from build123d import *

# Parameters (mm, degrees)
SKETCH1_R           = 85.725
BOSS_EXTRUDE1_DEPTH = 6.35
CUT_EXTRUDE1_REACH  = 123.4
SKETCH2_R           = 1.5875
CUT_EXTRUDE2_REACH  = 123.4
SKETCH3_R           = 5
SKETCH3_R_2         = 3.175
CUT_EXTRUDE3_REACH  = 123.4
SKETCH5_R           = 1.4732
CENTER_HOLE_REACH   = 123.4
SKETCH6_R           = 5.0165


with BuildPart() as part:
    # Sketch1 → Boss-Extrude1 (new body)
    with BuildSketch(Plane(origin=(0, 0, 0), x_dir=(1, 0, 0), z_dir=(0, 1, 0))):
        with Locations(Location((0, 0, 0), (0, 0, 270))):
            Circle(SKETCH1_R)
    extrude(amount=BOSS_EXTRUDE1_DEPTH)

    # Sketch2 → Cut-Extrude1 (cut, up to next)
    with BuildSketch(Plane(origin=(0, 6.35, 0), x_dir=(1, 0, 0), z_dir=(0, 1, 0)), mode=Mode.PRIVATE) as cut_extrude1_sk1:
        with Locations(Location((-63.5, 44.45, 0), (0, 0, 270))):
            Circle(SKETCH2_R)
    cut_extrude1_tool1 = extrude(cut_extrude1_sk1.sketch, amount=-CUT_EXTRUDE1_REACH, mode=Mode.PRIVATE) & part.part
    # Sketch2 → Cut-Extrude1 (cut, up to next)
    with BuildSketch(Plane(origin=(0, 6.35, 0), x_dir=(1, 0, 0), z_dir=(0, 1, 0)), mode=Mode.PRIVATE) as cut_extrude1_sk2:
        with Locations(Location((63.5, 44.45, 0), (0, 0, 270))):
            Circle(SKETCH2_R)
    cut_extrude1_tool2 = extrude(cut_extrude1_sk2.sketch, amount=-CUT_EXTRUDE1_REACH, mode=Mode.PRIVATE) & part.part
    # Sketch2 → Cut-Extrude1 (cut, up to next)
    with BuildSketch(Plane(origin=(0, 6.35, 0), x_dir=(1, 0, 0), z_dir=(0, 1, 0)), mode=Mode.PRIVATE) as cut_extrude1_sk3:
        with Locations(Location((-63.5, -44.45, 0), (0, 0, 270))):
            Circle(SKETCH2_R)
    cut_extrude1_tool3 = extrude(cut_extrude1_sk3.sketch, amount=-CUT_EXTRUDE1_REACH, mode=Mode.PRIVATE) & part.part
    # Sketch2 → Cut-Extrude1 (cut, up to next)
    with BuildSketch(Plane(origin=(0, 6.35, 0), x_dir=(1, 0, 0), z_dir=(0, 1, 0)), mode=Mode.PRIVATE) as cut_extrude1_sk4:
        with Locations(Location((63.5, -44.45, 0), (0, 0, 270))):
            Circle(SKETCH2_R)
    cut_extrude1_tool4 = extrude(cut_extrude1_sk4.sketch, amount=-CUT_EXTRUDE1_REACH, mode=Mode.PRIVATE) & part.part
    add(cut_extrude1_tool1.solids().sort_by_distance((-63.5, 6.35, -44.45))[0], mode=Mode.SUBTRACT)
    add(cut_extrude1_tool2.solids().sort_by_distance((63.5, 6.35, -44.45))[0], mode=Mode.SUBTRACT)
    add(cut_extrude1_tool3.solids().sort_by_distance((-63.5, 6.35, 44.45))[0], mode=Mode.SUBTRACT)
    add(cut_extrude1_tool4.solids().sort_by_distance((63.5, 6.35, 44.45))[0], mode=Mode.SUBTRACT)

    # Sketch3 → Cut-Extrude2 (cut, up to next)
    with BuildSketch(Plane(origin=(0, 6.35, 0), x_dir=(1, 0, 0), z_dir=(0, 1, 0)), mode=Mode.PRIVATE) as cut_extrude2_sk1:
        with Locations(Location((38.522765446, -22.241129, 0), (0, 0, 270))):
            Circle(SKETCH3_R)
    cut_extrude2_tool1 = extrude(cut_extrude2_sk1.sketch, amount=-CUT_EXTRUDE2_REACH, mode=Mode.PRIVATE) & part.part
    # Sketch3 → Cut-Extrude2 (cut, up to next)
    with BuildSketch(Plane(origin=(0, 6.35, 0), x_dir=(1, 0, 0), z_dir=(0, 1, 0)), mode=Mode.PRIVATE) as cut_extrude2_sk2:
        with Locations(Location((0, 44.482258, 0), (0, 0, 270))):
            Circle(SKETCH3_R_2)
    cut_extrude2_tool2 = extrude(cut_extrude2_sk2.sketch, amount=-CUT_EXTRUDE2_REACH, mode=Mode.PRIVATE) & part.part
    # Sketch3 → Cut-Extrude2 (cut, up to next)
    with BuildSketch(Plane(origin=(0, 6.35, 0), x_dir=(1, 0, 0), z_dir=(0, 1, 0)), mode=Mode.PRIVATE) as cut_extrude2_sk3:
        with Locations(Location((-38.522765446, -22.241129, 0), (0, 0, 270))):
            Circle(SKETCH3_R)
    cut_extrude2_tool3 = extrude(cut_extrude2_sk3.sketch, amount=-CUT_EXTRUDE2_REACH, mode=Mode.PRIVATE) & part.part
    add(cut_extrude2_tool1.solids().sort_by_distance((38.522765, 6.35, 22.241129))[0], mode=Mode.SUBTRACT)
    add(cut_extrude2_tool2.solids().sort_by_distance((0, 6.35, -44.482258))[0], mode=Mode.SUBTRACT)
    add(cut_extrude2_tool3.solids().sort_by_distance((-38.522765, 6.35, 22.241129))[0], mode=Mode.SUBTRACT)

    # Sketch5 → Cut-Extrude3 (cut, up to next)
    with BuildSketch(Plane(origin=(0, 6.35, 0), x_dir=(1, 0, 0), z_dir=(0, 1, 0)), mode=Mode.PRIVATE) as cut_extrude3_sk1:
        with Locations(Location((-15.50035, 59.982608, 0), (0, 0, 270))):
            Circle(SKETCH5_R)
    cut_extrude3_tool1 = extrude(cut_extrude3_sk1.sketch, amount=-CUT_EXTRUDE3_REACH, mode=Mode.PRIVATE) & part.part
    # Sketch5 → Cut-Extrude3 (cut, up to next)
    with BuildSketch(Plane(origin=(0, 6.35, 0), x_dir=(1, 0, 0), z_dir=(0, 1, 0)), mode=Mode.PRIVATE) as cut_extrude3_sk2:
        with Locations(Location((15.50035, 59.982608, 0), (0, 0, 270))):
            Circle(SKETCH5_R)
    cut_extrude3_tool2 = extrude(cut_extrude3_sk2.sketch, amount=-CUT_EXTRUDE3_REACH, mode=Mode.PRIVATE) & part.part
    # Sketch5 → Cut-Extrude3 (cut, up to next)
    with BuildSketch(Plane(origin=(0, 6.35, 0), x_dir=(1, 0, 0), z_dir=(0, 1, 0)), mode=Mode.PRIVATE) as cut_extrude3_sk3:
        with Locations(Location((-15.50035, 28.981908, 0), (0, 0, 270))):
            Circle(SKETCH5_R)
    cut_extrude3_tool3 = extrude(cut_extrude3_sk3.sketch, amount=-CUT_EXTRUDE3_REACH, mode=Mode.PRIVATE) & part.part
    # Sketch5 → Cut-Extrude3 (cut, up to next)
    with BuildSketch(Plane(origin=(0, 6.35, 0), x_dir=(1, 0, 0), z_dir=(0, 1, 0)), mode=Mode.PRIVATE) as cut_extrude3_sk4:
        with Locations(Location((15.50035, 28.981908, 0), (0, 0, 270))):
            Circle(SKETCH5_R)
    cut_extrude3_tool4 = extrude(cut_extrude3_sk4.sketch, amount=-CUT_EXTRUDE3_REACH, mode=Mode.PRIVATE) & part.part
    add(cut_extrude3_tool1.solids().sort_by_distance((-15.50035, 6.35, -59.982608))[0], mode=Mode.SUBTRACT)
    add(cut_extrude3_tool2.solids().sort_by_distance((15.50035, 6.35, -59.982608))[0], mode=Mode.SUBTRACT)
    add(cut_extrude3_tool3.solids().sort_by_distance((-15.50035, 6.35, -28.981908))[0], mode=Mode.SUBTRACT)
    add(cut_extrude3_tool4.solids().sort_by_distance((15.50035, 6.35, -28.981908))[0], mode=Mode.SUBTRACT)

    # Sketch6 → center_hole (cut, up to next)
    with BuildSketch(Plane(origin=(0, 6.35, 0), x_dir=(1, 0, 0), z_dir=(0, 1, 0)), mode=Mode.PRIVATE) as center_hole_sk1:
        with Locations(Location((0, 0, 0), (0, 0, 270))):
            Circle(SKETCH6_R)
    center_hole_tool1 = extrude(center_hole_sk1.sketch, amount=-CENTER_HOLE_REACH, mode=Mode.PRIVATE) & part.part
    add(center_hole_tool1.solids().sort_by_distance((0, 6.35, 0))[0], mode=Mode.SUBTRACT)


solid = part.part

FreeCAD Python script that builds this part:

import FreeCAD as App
import Part
import Sketcher
from FreeCAD import Vector
Q = App.Units.Quantity

doc = App.newDocument("Part")
body = doc.addObject("PartDesign::Body", "Body")

sketch1 = body.newObject("Sketcher::SketchObject", "Sketch")
sketch1.AttachmentSupport = (doc.getObject("XZ_Plane"), [""])
sketch1.MapMode = "FlatFace"
sketch1.addGeometry(Part.Circle(Vector(0, 0, 0), Vector(0, 0, 1), 85.725), False)
sketch1.addConstraint(Sketcher.Constraint("Coincident", 0, 3, -1, 1))
sketch1.addConstraint(Sketcher.Constraint("Diameter", 0, Q("6.75 in")))
pad1 = body.newObject("PartDesign::Pad", "Pad")
pad1.Profile = sketch1
pad1.Length = Q("0.25 in")
pad1.Reversed = True

sketch2 = body.newObject("Sketcher::SketchObject", "Sketch001")
sketch2.AttachmentSupport = (doc.getObject("XZ_Plane"), [""])
sketch2.MapMode = "FlatFace"
sketch2.AttachmentOffset = App.Placement(Vector(0, 0, -0.25 * 25.4), App.Rotation())
sketch2.addGeometry(Part.Circle(Vector(-63.5, -44.45, 0), Vector(0, 0, 1), 1.5875), False)
sketch2.addConstraint(Sketcher.Constraint("Diameter", 0, Q("0.125 in")))
sketch2.addConstraint(Sketcher.Constraint("DistanceX", 0, 3, -1, 1, Q("2.5 in")))
sketch2.addConstraint(Sketcher.Constraint("DistanceY", 0, 3, -1, 1, Q("1.75 in")))
pocket1 = body.newObject("PartDesign::Pocket", "Pocket")
pocket1.Profile = sketch2
pocket1.Type = "UpToFirst"
pocket1.Reversed = True

sketch3 = body.newObject("Sketcher::SketchObject", "Sketch002")
sketch3.AttachmentSupport = (doc.getObject("XZ_Plane"), [""])
sketch3.MapMode = "FlatFace"
sketch3.AttachmentOffset = App.Placement(Vector(0, 0, -0.25 * 25.4), App.Rotation())
sketch3.addGeometry(Part.Circle(Vector(63.5, -44.45, 0), Vector(0, 0, 1), 1.5875), False)
sketch3.addConstraint(Sketcher.Constraint("Diameter", 0, Q("0.125 in")))
sketch3.addConstraint(Sketcher.Constraint("DistanceX", -1, 1, 0, 3, Q("2.5 in")))
sketch3.addConstraint(Sketcher.Constraint("DistanceY", 0, 3, -1, 1, Q("1.75 in")))
pocket2 = body.newObject("PartDesign::Pocket", "Pocket001")
pocket2.Profile = sketch3
pocket2.Type = "UpToFirst"
pocket2.Reversed = True

sketch4 = body.newObject("Sketcher::SketchObject", "Sketch003")
sketch4.AttachmentSupport = (doc.getObject("XZ_Plane"), [""])
sketch4.MapMode = "FlatFace"
sketch4.AttachmentOffset = App.Placement(Vector(0, 0, -0.25 * 25.4), App.Rotation())
sketch4.addGeometry(Part.Circle(Vector(-63.5, 44.45, 0), Vector(0, 0, 1), 1.5875), False)
sketch4.addConstraint(Sketcher.Constraint("Diameter", 0, Q("0.125 in")))
sketch4.addConstraint(Sketcher.Constraint("DistanceX", 0, 3, -1, 1, Q("2.5 in")))
sketch4.addConstraint(Sketcher.Constraint("DistanceY", -1, 1, 0, 3, Q("1.75 in")))
pocket3 = body.newObject("PartDesign::Pocket", "Pocket002")
pocket3.Profile = sketch4
pocket3.Type = "UpToFirst"
pocket3.Reversed = True

sketch5 = body.newObject("Sketcher::SketchObject", "Sketch004")
sketch5.AttachmentSupport = (doc.getObject("XZ_Plane"), [""])
sketch5.MapMode = "FlatFace"
sketch5.AttachmentOffset = App.Placement(Vector(0, 0, -0.25 * 25.4), App.Rotation())
sketch5.addGeometry(Part.Circle(Vector(63.5, 44.45, 0), Vector(0, 0, 1), 1.5875), False)
sketch5.addConstraint(Sketcher.Constraint("Diameter", 0, Q("0.125 in")))
sketch5.addConstraint(Sketcher.Constraint("DistanceX", -1, 1, 0, 3, Q("2.5 in")))
sketch5.addConstraint(Sketcher.Constraint("DistanceY", -1, 1, 0, 3, Q("1.75 in")))
pocket4 = body.newObject("PartDesign::Pocket", "Pocket003")
pocket4.Profile = sketch5
pocket4.Type = "UpToFirst"
pocket4.Reversed = True

sketch6 = body.newObject("Sketcher::SketchObject", "Sketch005")
sketch6.AttachmentSupport = (doc.getObject("XZ_Plane"), [""])
sketch6.MapMode = "FlatFace"
sketch6.AttachmentOffset = App.Placement(Vector(0, 0, -0.25 * 25.4), App.Rotation())
sketch6.addGeometry(Part.Circle(Vector(38.522765, 22.241129, 0), Vector(0, 0, 1), 5), False)
sketch6.addConstraint(Sketcher.Constraint("Diameter", 0, 10.0))
sketch6.addConstraint(Sketcher.Constraint("DistanceY", -1, 1, 0, 3, 22.241129))
sketch6.addConstraint(Sketcher.Constraint("DistanceX", -1, 1, 0, 3, 38.522765))
pocket5 = body.newObject("PartDesign::Pocket", "Pocket004")
pocket5.Profile = sketch6
pocket5.Type = "UpToFirst"
pocket5.Reversed = True

sketch7 = body.newObject("Sketcher::SketchObject", "Sketch006")
sketch7.AttachmentSupport = (doc.getObject("XZ_Plane"), [""])
sketch7.MapMode = "FlatFace"
sketch7.AttachmentOffset = App.Placement(Vector(0, 0, -0.25 * 25.4), App.Rotation())
sketch7.addGeometry(Part.Circle(Vector(0, -44.482258, 0), Vector(0, 0, 1), 3.175), False)
sketch7.addConstraint(Sketcher.Constraint("PointOnObject", 0, 3, -2))
sketch7.addConstraint(Sketcher.Constraint("Diameter", 0, Q("0.25 in")))
sketch7.addConstraint(Sketcher.Constraint("DistanceY", 0, 3, -1, 1, 44.482258))
pocket6 = body.newObject("PartDesign::Pocket", "Pocket005")
pocket6.Profile = sketch7
pocket6.Type = "UpToFirst"
pocket6.Reversed = True

sketch8 = body.newObject("Sketcher::SketchObject", "Sketch007")
sketch8.AttachmentSupport = (doc.getObject("XZ_Plane"), [""])
sketch8.MapMode = "FlatFace"
sketch8.AttachmentOffset = App.Placement(Vector(0, 0, -0.25 * 25.4), App.Rotation())
sketch8.addGeometry(Part.Circle(Vector(-38.522765, 22.241129, 0), Vector(0, 0, 1), 5), False)
sketch8.addConstraint(Sketcher.Constraint("Diameter", 0, 10.0))
sketch8.addConstraint(Sketcher.Constraint("DistanceY", -1, 1, 0, 3, 22.241129))
sketch8.addConstraint(Sketcher.Constraint("DistanceX", 0, 3, -1, 1, 38.522765))
pocket7 = body.newObject("PartDesign::Pocket", "Pocket006")
pocket7.Profile = sketch8
pocket7.Type = "UpToFirst"
pocket7.Reversed = True

sketch9 = body.newObject("Sketcher::SketchObject", "Sketch008")
sketch9.AttachmentSupport = (doc.getObject("XZ_Plane"), [""])
sketch9.MapMode = "FlatFace"
sketch9.AttachmentOffset = App.Placement(Vector(0, 0, -0.25 * 25.4), App.Rotation())
sketch9.addGeometry(Part.Circle(Vector(-15.50035, -59.982608, 0), Vector(0, 0, 1), 1.4732), False)
sketch9.addConstraint(Sketcher.Constraint("Diameter", 0, Q("0.116 in")))
sketch9.addConstraint(Sketcher.Constraint("DistanceX", 0, 3, -1, 1, 15.50035))
sketch9.addConstraint(Sketcher.Constraint("DistanceY", 0, 3, -1, 1, 59.982608))
pocket8 = body.newObject("PartDesign::Pocket", "Pocket007")
pocket8.Profile = sketch9
pocket8.Type = "UpToFirst"
pocket8.Reversed = True

sketch10 = body.newObject("Sketcher::SketchObject", "Sketch009")
sketch10.AttachmentSupport = (doc.getObject("XZ_Plane"), [""])
sketch10.MapMode = "FlatFace"
sketch10.AttachmentOffset = App.Placement(Vector(0, 0, -0.25 * 25.4), App.Rotation())
sketch10.addGeometry(Part.Circle(Vector(15.50035, -59.982608, 0), Vector(0, 0, 1), 1.4732), False)
sketch10.addConstraint(Sketcher.Constraint("Diameter", 0, Q("0.116 in")))
sketch10.addConstraint(Sketcher.Constraint("DistanceX", -1, 1, 0, 3, 15.50035))
sketch10.addConstraint(Sketcher.Constraint("DistanceY", 0, 3, -1, 1, 59.982608))
pocket9 = body.newObject("PartDesign::Pocket", "Pocket008")
pocket9.Profile = sketch10
pocket9.Type = "UpToFirst"
pocket9.Reversed = True

sketch11 = body.newObject("Sketcher::SketchObject", "Sketch010")
sketch11.AttachmentSupport = (doc.getObject("XZ_Plane"), [""])
sketch11.MapMode = "FlatFace"
sketch11.AttachmentOffset = App.Placement(Vector(0, 0, -0.25 * 25.4), App.Rotation())
sketch11.addGeometry(Part.Circle(Vector(-15.50035, -28.981908, 0), Vector(0, 0, 1), 1.4732), False)
sketch11.addConstraint(Sketcher.Constraint("Diameter", 0, Q("0.116 in")))
sketch11.addConstraint(Sketcher.Constraint("DistanceX", 0, 3, -1, 1, 15.50035))
sketch11.addConstraint(Sketcher.Constraint("DistanceY", 0, 3, -1, 1, 28.981908))
pocket10 = body.newObject("PartDesign::Pocket", "Pocket009")
pocket10.Profile = sketch11
pocket10.Type = "UpToFirst"
pocket10.Reversed = True

sketch12 = body.newObject("Sketcher::SketchObject", "Sketch011")
sketch12.AttachmentSupport = (doc.getObject("XZ_Plane"), [""])
sketch12.MapMode = "FlatFace"
sketch12.AttachmentOffset = App.Placement(Vector(0, 0, -0.25 * 25.4), App.Rotation())
sketch12.addGeometry(Part.Circle(Vector(15.50035, -28.981908, 0), Vector(0, 0, 1), 1.4732), False)
sketch12.addConstraint(Sketcher.Constraint("Diameter", 0, Q("0.116 in")))
sketch12.addConstraint(Sketcher.Constraint("DistanceX", -1, 1, 0, 3, 15.50035))
sketch12.addConstraint(Sketcher.Constraint("DistanceY", 0, 3, -1, 1, 28.981908))
pocket11 = body.newObject("PartDesign::Pocket", "Pocket010")
pocket11.Profile = sketch12
pocket11.Type = "UpToFirst"
pocket11.Reversed = True

sketch13 = body.newObject("Sketcher::SketchObject", "Sketch012")
sketch13.AttachmentSupport = (doc.getObject("XZ_Plane"), [""])
sketch13.MapMode = "FlatFace"
sketch13.AttachmentOffset = App.Placement(Vector(0, 0, -0.25 * 25.4), App.Rotation())
sketch13.addGeometry(Part.Circle(Vector(0, 0, 0), Vector(0, 0, 1), 5.0165), False)
sketch13.addConstraint(Sketcher.Constraint("Coincident", 0, 3, -1, 1))
sketch13.addConstraint(Sketcher.Constraint("Diameter", 0, Q("0.395 in")))
pocket12 = body.newObject("PartDesign::Pocket", "Pocket011")
pocket12.Profile = sketch13
pocket12.Type = "UpToFirst"
pocket12.Reversed = True

doc.recompute()
